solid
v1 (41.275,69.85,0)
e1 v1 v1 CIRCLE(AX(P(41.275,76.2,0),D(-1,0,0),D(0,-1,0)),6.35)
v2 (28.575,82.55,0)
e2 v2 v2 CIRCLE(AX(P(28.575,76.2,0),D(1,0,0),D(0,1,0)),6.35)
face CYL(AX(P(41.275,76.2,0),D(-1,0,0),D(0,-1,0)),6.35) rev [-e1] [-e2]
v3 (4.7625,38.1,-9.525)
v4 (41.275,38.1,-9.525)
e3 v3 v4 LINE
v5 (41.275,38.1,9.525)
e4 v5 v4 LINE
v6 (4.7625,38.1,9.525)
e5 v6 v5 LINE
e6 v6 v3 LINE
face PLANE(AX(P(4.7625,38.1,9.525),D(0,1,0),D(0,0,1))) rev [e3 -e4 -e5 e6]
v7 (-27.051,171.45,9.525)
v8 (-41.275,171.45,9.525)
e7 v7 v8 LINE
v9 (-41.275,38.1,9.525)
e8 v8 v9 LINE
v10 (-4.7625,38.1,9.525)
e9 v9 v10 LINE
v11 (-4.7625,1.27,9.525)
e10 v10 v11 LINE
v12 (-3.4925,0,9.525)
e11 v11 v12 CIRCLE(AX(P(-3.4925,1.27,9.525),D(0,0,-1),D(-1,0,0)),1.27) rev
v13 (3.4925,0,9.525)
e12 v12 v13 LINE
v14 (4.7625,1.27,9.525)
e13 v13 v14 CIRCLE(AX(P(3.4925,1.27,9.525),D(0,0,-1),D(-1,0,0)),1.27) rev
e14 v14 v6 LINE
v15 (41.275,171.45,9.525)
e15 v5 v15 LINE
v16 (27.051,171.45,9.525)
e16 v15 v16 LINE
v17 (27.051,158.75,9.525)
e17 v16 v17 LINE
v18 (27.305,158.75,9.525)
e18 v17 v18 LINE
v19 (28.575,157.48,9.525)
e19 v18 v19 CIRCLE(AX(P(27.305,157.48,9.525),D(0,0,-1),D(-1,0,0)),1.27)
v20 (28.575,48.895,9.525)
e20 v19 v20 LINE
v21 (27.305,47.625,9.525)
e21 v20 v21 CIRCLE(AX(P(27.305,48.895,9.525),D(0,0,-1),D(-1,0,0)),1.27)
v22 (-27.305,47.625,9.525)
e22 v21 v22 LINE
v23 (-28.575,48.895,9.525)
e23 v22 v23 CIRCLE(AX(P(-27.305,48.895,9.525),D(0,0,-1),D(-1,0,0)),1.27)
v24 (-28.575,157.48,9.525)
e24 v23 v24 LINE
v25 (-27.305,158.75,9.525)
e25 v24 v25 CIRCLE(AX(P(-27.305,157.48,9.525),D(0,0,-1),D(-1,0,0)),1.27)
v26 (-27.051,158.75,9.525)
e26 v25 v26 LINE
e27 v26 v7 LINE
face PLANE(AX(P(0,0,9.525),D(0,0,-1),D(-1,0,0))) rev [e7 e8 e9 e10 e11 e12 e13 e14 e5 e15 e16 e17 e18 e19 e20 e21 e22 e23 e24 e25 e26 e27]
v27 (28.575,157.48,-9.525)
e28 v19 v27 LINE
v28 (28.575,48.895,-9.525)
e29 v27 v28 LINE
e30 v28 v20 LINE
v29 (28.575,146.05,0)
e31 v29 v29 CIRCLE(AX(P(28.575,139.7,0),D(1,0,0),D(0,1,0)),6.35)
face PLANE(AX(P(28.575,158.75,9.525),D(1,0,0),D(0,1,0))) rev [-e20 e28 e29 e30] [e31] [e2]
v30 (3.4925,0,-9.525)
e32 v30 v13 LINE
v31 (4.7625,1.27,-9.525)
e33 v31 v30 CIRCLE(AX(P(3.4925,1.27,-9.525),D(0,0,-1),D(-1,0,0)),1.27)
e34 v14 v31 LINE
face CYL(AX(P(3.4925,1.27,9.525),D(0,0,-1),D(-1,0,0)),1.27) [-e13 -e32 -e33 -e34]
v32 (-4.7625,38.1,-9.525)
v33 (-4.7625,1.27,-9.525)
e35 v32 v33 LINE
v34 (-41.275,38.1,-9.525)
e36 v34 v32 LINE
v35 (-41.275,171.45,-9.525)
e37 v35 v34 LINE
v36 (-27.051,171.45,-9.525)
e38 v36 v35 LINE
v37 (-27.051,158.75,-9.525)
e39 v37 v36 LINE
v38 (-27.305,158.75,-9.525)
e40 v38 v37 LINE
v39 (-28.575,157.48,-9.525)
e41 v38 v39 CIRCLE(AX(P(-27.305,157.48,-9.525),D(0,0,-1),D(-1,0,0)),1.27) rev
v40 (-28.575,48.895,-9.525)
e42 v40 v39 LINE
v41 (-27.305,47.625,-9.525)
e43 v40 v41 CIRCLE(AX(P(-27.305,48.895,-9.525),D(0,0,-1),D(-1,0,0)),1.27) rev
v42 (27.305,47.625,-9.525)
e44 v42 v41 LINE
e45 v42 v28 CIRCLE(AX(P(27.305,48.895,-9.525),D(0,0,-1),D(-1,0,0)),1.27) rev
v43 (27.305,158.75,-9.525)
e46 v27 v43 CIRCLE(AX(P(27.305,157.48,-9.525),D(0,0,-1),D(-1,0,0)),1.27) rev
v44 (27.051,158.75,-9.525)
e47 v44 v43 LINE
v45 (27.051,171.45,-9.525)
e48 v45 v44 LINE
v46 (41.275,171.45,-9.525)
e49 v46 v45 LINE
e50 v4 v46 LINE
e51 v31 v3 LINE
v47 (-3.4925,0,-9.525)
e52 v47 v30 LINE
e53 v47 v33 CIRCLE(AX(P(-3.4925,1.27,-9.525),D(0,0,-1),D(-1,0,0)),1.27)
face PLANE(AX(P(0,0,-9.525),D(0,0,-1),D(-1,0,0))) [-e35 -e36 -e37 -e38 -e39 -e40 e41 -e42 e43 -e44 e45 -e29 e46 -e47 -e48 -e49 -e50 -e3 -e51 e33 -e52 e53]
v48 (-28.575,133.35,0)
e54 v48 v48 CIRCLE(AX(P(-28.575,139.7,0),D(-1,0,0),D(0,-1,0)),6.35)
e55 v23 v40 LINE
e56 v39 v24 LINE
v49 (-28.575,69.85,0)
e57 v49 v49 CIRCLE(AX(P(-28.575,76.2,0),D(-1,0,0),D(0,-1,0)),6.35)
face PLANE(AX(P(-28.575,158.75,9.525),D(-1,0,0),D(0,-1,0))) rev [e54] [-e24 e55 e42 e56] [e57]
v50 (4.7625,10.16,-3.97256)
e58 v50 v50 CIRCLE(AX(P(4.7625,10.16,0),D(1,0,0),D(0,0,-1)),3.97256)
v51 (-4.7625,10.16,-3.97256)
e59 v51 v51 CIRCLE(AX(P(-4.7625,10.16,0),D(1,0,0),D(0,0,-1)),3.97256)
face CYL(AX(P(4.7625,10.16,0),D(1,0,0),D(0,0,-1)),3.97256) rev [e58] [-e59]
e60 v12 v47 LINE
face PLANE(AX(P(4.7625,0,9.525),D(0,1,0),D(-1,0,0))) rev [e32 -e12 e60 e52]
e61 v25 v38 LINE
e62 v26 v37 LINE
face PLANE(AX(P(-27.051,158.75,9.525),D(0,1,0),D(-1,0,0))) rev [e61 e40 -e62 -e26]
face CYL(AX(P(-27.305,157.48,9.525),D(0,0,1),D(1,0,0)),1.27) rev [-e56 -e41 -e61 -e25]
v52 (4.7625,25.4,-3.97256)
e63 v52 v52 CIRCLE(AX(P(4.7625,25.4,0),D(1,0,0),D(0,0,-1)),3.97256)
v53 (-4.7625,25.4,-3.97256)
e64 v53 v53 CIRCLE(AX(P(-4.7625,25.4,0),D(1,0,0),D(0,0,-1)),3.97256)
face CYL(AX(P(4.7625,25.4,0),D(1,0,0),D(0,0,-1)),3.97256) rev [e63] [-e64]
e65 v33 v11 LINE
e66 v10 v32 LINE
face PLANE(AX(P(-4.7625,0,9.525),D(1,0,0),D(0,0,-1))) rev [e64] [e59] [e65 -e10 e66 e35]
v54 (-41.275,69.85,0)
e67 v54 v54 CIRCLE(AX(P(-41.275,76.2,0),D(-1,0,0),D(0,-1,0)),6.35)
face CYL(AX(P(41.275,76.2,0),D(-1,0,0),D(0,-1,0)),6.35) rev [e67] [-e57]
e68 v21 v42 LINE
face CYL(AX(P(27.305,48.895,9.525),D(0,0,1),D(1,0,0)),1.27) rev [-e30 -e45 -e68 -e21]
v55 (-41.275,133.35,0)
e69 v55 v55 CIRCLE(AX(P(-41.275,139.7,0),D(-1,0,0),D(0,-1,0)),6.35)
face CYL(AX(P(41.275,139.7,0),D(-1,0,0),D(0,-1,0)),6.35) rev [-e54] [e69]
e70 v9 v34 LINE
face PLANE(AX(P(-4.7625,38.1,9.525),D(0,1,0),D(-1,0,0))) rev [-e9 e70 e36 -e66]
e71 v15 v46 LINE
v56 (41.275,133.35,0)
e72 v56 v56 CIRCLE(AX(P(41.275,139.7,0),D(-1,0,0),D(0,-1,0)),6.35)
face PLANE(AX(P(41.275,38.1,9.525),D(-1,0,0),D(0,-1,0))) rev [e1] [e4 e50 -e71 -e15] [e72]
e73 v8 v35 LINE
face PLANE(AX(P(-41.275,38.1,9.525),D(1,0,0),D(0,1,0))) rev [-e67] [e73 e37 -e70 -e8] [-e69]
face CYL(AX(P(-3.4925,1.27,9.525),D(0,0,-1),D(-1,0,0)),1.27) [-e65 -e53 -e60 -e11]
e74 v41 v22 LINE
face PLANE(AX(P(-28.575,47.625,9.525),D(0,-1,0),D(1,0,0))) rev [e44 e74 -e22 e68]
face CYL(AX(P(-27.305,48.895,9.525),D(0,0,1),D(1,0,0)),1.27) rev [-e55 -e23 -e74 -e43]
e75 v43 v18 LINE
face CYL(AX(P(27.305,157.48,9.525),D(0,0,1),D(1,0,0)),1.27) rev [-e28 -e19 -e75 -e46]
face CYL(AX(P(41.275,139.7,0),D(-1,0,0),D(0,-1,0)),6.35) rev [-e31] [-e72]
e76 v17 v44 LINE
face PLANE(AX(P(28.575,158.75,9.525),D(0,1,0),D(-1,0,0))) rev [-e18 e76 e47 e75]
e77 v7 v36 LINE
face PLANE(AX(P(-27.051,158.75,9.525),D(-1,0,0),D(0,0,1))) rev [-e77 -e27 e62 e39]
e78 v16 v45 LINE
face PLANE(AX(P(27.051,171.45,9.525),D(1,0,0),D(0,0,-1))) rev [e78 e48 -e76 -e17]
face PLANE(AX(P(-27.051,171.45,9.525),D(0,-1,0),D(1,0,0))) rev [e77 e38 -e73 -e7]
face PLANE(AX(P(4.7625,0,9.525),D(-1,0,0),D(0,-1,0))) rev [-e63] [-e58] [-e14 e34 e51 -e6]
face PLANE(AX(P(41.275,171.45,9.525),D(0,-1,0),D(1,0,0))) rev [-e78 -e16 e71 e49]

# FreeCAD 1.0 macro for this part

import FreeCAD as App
import Part
import Sketcher
Q = App.Units.Quantity


def edges_at(feature, points):
    """Names of the edges that pass closest to the given points."""
    edges = feature.Shape.Edges
    near = lambda p: min(range(len(edges)), key=lambda i: edges[i].distToShape(Part.Vertex(*p))[0])
    return sorted({f"Edge{near(p) + 1}" for p in points})

doc = App.newDocument("Part")
body = doc.addObject("PartDesign::Body", "Body")

# Sketch on XY plane
sketch1 = doc.addObject("Sketcher::SketchObject", "Sketch")
body.addObject(sketch1)
sketch1.AttachmentSupport = (doc.XY_Plane, [""])
sketch1.MapMode = "FlatFace"
sketch1.addGeometry([
    Part.LineSegment(App.Vector(-4.8, 0, 0), App.Vector(4.8, 0, 0)),  # 0
    Part.LineSegment(App.Vector(4.8, 0, 0), App.Vector(4.8, 38.1, 0)),  # 1
    Part.LineSegment(App.Vector(4.8, 38.1, 0), App.Vector(41.3, 38.1, 0)),  # 2
    Part.LineSegment(App.Vector(41.3, 38.1, 0), App.Vector(41.3, 171.4, 0)),  # 3
    Part.LineSegment(App.Vector(41.3, 171.4, 0), App.Vector(27.1, 171.4, 0)),  # 4
    Part.LineSegment(App.Vector(27.1, 171.4, 0), App.Vector(27.1, 158.8, 0)),  # 5
    Part.LineSegment(App.Vector(27.1, 158.8, 0), App.Vector(28.6, 158.8, 0)),  # 6
    Part.LineSegment(App.Vector(28.6, 158.8, 0), App.Vector(28.6, 47.6, 0)),  # 7
    Part.LineSegment(App.Vector(28.6, 47.6, 0), App.Vector(-28.6, 47.6, 0)),  # 8
    Part.LineSegment(App.Vector(-28.6, 47.6, 0), App.Vector(-28.6, 158.8, 0)),  # 9
    Part.LineSegment(App.Vector(-28.6, 158.8, 0), App.Vector(-27.1, 158.8, 0)),  # 10
    Part.LineSegment(App.Vector(-27.1, 158.8, 0), App.Vector(-27.1, 171.4, 0)),  # 11
    Part.LineSegment(App.Vector(-27.1, 171.4, 0), App.Vector(-41.3, 171.4, 0)),  # 12
    Part.LineSegment(App.Vector(-41.3, 171.4, 0), App.Vector(-41.3, 38.1, 0)),  # 13
    Part.LineSegment(App.Vector(-41.3, 38.1, 0), App.Vector(-4.8, 38.1, 0)),  # 14
    Part.LineSegment(App.Vector(-4.8, 38.1, 0), App.Vector(-4.8, 0, 0)),  # 15
], False)
sketch1.addConstraint([
    Sketcher.Constraint("Coincident", 0, 2, 1, 1),
    Sketcher.Constraint("Coincident", 1, 2, 2, 1),
    Sketcher.Constraint("Coincident", 2, 2, 3, 1),
    Sketcher.Constraint("Coincident", 3, 2, 4, 1),
    Sketcher.Constraint("Coincident", 4, 2, 5, 1),
    Sketcher.Constraint("Coincident", 5, 2, 6, 1),
    Sketcher.Constraint("Coincident", 6, 2, 7, 1),
    Sketcher.Constraint("Coincident", 7, 2, 8, 1),
    Sketcher.Constraint("Coincident", 8, 2, 9, 1),
    Sketcher.Constraint("Coincident", 9, 2, 10, 1),
    Sketcher.Constraint("Coincident", 10, 2, 11, 1),
    Sketcher.Constraint("Coincident", 11, 2, 12, 1),
    Sketcher.Constraint("Coincident", 12, 2, 13, 1),
    Sketcher.Constraint("Coincident", 13, 2, 14, 1),
    Sketcher.Constraint("Coincident", 14, 2, 15, 1),
    Sketcher.Constraint("Coincident", 15, 2, 0, 1),
    Sketcher.Constraint("Horizontal", 0),
    Sketcher.Constraint("Vertical", 1),
    Sketcher.Constraint("Horizontal", 2),
    Sketcher.Constraint("Vertical", 3),
    Sketcher.Constraint("Horizontal", 4),
    Sketcher.Constraint("Vertical", 5),
    Sketcher.Constraint("Horizontal", 6),
    Sketcher.Constraint("Vertical", 7),
    Sketcher.Constraint("Horizontal", 8),
    Sketcher.Constraint("Vertical", 9),
    Sketcher.Constraint("Horizontal", 10),
    Sketcher.Constraint("Vertical", 11),
    Sketcher.Constraint("Horizontal", 12),
    Sketcher.Constraint("Vertical", 13),
    Sketcher.Constraint("Horizontal", 14),
    Sketcher.Constraint("Vertical", 15),
    Sketcher.Constraint("Symmetric", 0, 2, 15, 2, -1, 1),
    Sketcher.Constraint("Symmetric", 6, 2, 9, 2, -2),
    Sketcher.Constraint("Symmetric", 4, 2, 11, 2, -2),
    Sketcher.Constraint("Symmetric", 2, 2, 13, 2, -2),
    Sketcher.Constraint("DistanceY", 1, 1, 1, 2, Q("1.5 in")),
    Sketcher.Constraint("DistanceY", 5, 2, 5, 1, Q("0.5 in")),
    Sketcher.Constraint("DistanceX", 4, 2, 4, 1, Q("0.56 in")),
    Sketcher.Constraint("DistanceX", 6, 1, 6, 2, Q("0.06 in")),
    Sketcher.Constraint("DistanceX", 8, 2, 8, 1, Q("2.25 in")),
    Sketcher.Constraint("DistanceY", 3, 1, 3, 2, Q("5.25 in")),
    Sketcher.Constraint("DistanceX", 0, 1, 0, 2, Q("0.375 in")),
    Sketcher.Constraint("DistanceY", 7, 2, 7, 1, Q("4.375 in")),
])
pad1 = doc.addObject("PartDesign::Pad", "Pad")
body.addObject(pad1)
pad1.Profile = sketch1
pad1.Length = Q("0.75 in")
pad1.Midplane = True

# Sketch on YZ plane
sketch2 = doc.addObject("Sketcher::SketchObject", "Sketch001")
body.addObject(sketch2)
sketch2.AttachmentSupport = (doc.YZ_Plane, [""])
sketch2.MapMode = "FlatFace"
sketch2.AttachmentOffset = App.Placement(App.Vector(0, 0, -1.625 * 25.4), App.Rotation())
sketch2.addGeometry([
    Part.Circle(App.Vector(76, 0, 0), App.Vector(0, 0, 1), 6),
    Part.Circle(App.Vector(140, 0, 0), App.Vector(0, 0, 1), 6),
], False)
sketch2.addConstraint([
    Sketcher.Constraint("Equal", 0, 1),
    Sketcher.Constraint("PointOnObject", 0, 3, -1),
    Sketcher.Constraint("PointOnObject", 1, 3, -1),
    Sketcher.Constraint("Diameter", 0, Q("0.5 in")),
    Sketcher.Constraint("DistanceX", -1, 1, 0, 3, Q("3 in")),
    Sketcher.Constraint("DistanceX", -1, 1, 1, 3, Q("5.5 in")),
])
pocket1 = doc.addObject("PartDesign::Pocket", "Pocket")
body.addObject(pocket1)
pocket1.Profile = sketch2
pocket1.Type = "ThroughAll"
pocket1.Reversed = True
doc.recompute()

fillet = doc.addObject("PartDesign::Fillet", "Fillet")
body.addObject(fillet)
fillet.Base = (pocket1, edges_at(pocket1, [
    (4.763, 0, 0),
    (-4.763, 0, 0),
    (-28.575, 158.75, 0),
    (-28.575, 47.625, 0),
    (28.575, 47.625, 0),
    (28.575, 158.75, 0),
]))
fillet.Radius = Q("0.05 in")

# Sketch on YZ plane
sketch3 = doc.addObject("Sketcher::SketchObject", "Sketch002")
body.addObject(sketch3)
sketch3.AttachmentSupport = (doc.YZ_Plane, [""])
sketch3.MapMode = "FlatFace"
sketch3.AttachmentOffset = App.Placement(App.Vector(0, 0, 0.1875 * 25.4), App.Rotation())
sketch3.addGeometry([
    Part.Circle(App.Vector(25.4, 0, 0), App.Vector(0, 0, 1), 4),
    Part.Circle(App.Vector(10.2, 0, 0), App.Vector(0, 0, 1), 4),
], False)
sketch3.addConstraint([
    Sketcher.Constraint("Equal", 0, 1),
    Sketcher.Constraint("PointOnObject", 0, 3, -1),
    Sketcher.Constraint("PointOnObject", 1, 3, -1),
    Sketcher.Constraint("DistanceX", -1, 1, 0, 3, Q("1 in")),
    Sketcher.Constraint("Diameter", 0, Q("0.3128 in")),
    Sketcher.Constraint("DistanceX", -1, 1, 1, 3, Q("0.4 in")),
])
doc.recompute()
hole = doc.addObject("PartDesign::Hole", "Hole")
body.addObject(hole)
hole.Profile = sketch3
hole.ThreadType = "None"
hole.Diameter = Q("0.3128 in")
hole.DepthType = "Dimension"
hole.Depth = Q("1.8125 in")
hole.DrillPoint = "Angled"
hole.DrillPointAngle = 118

doc.recompute()
